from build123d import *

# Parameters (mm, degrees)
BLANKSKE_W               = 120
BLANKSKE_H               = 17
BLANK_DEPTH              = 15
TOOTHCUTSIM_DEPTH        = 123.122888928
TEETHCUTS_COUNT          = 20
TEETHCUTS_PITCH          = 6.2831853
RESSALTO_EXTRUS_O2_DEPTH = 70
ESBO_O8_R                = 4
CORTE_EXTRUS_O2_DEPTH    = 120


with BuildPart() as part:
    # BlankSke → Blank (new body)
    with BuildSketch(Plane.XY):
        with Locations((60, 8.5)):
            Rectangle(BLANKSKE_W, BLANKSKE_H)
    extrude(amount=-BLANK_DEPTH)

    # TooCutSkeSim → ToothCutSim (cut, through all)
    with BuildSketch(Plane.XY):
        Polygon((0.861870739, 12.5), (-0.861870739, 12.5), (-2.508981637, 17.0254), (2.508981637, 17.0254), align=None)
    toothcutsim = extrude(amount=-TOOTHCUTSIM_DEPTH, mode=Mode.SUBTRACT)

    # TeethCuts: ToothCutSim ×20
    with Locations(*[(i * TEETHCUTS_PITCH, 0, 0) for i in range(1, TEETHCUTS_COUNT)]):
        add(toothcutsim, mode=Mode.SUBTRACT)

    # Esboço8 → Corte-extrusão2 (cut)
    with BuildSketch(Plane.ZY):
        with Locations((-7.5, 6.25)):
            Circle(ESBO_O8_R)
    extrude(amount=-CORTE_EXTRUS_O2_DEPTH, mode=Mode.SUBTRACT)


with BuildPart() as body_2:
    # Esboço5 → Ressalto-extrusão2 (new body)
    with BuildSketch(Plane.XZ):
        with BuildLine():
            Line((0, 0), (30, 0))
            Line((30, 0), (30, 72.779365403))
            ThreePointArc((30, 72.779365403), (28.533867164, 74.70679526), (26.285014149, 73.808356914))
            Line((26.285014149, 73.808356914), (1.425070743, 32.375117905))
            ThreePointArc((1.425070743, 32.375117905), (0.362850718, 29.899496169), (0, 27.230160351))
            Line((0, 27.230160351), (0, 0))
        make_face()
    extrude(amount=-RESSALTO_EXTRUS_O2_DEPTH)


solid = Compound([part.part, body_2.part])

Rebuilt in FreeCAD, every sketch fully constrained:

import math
import FreeCAD as App
import Part
import Sketcher
Q = App.Units.Quantity

doc = App.newDocument("Part")
body = doc.addObject("PartDesign::Body", "Body")

# Sketch on XY plane
sketch1 = body.newObject("Sketcher::SketchObject", "Sketch")
sketch1.AttachmentSupport = (doc.getObject("XY_Plane"), [""])
sketch1.MapMode = "FlatFace"
sketch1.addGeometry([
    Part.LineSegment(App.Vector(0, 17, 0), App.Vector(0, 0, 0)),
    Part.LineSegment(App.Vector(0, 0, 0), App.Vector(120, 0, 0)),
    Part.LineSegment(App.Vector(120, 0, 0), App.Vector(120, 17, 0)),
    Part.LineSegment(App.Vector(120, 17, 0), App.Vector(0, 17, 0)),
], False)
sketch1.addConstraint([
    Sketcher.Constraint("Coincident", 0, 2, 1, 1),
    Sketcher.Constraint("Coincident", 1, 2, 2, 1),
    Sketcher.Constraint("Coincident", 2, 2, 3, 1),
    Sketcher.Constraint("Coincident", 3, 2, 0, 1),
    Sketcher.Constraint("Vertical", 0),
    Sketcher.Constraint("Horizontal", 1),
    Sketcher.Constraint("Vertical", 2),
    Sketcher.Constraint("Horizontal", 3),
    Sketcher.Constraint("Coincident", 0, 2, -1, 1),
    Sketcher.Constraint("DistanceX", 1, 1, 1, 2, 120.0),
    Sketcher.Constraint("DistanceY", 0, 2, 0, 1, 17.0),
])
pad1 = body.newObject("PartDesign::Pad", "Pad")
pad1.Profile = sketch1
pad1.Length = 15
pad1.Reversed = True

# Sketch on XY plane
sketch2 = body.newObject("Sketcher::SketchObject", "Sketch001")
sketch2.AttachmentSupport = (doc.getObject("XY_Plane"), [""])
sketch2.MapMode = "FlatFace"
sketch2.addGeometry([
    Part.LineSegment(App.Vector(-0.9, 12.5, 0), App.Vector(0.9, 12.5, 0)),
    Part.LineSegment(App.Vector(0.9, 12.5, 0), App.Vector(2.5, 17, 0)),
    Part.LineSegment(App.Vector(2.5, 17, 0), App.Vector(-2.5, 17, 0)),
    Part.LineSegment(App.Vector(-2.5, 17, 0), App.Vector(-0.9, 12.5, 0)),
], False)
sketch2.addConstraint([
    Sketcher.Constraint("Coincident", 0, 2, 1, 1),
    Sketcher.Constraint("Coincident", 1, 2, 2, 1),
    Sketcher.Constraint("Coincident", 2, 2, 3, 1),
    Sketcher.Constraint("Coincident", 3, 2, 0, 1),
    Sketcher.Constraint("Horizontal", 0),
    Sketcher.Constraint("Horizontal", 2),
    Sketcher.Constraint("Equal", 1, 3),
    Sketcher.Constraint("Angle", 1, Q("70 deg")),
    Sketcher.Constraint("DistanceY", -1, 1, 0, 2, 12.5),
    Sketcher.Constraint("DistanceX", 0, 1, 0, 2, 1.723741),
    Sketcher.Constraint("DistanceY", -1, 1, 1, 2, 17.0254),
    Sketcher.Constraint("DistanceX", -1, 1, 0, 2, 0.861871),
])
pocket1 = body.newObject("PartDesign::Pocket", "Pocket")
pocket1.Profile = sketch2
pocket1.Type = "ThroughAll"
doc.recompute()

linearpattern = body.newObject("PartDesign::LinearPattern", "LinearPattern")
linearpattern.Originals = [pocket1]
linearpattern.Direction = (doc.getObject("X_Axis"), [""])
linearpattern.Mode = "offset"
linearpattern.Offset = 6.283185
linearpattern.Occurrences = 20
body.Tip = linearpattern

# Sketch on YZ plane
sketch3 = body.newObject("Sketcher::SketchObject", "Sketch002")
sketch3.AttachmentSupport = (doc.getObject("YZ_Plane"), [""])
sketch3.MapMode = "FlatFace"
sketch3.addGeometry(Part.Circle(App.Vector(6.2, -7.5, 0), App.Vector(0, 0, 1), 4), False)
sketch3.addConstraint([
    Sketcher.Constraint("Diameter", 0, 8.0),
    Sketcher.Constraint("DistanceY", 0, 3, -1, 1, 7.5),
    Sketcher.Constraint("DistanceX", -1, 1, 0, 3, 6.25),
])
pocket2 = body.newObject("PartDesign::Pocket", "Pocket001")
pocket2.Profile = sketch3
pocket2.Length = 120
pocket2.Reversed = True
body2 = doc.addObject("PartDesign::Body", "Body001")

# Sketch on XZ plane
sketch4 = body2.newObject("Sketcher::SketchObject", "Sketch003")
sketch4.AttachmentSupport = (doc.getObject("XZ_Plane001"), [""])
sketch4.MapMode = "FlatFace"
sketch4.addGeometry([
    Part.LineSegment(App.Vector(0, 0, 0), App.Vector(30, 0, 0)),  # 0
    Part.LineSegment(App.Vector(30, 0, 0), App.Vector(30, 72.8, 0)),  # 1
    Part.ArcOfCircle(Part.Circle(App.Vector(28, 72.8, 0), App.Vector(0, 0, 1), 2), math.radians(0), math.radians(149)),  # 2
    Part.LineSegment(App.Vector(26.3, 73.8, 0), App.Vector(1.4, 32.4, 0)),  # 3
    Part.ArcOfCircle(Part.Circle(App.Vector(10, 27.2, 0), App.Vector(0, 0, 1), 10), math.radians(149), math.radians(180)),  # 4
    Part.LineSegment(App.Vector(0, 27.2, 0), App.Vector(0, 0, 0)),  # 5
], False)
sketch4.addConstraint([
    Sketcher.Constraint("Coincident", 0, 2, 1, 1),
    Sketcher.Constraint("Tangent", 1, 2, 2, 1),
    Sketcher.Constraint("Tangent", 2, 2, 3, 1),
    Sketcher.Constraint("Tangent", 3, 2, 4, 1),
    Sketcher.Constraint("Tangent", 4, 2, 5, 1),
    Sketcher.Constraint("Coincident", 5, 2, 0, 1),
    Sketcher.Constraint("Horizontal", 0),
    Sketcher.Constraint("Vertical", 1),
    Sketcher.Constraint("Vertical", 5),
    Sketcher.Constraint("Coincident", 5, 2, -1, 1),
    Sketcher.Constraint("Radius", 2, 2.0),
    Sketcher.Constraint("Radius", 4, 10.0),
    Sketcher.Constraint("DistanceX", 0, 1, 0, 2, 30.0),
    Sketcher.Constraint("DistanceY", 5, 2, 5, 1, 27.23016),
    Sketcher.Constraint("DistanceY", 1, 1, 1, 2, 72.779365),
])
pad2 = body2.newObject("PartDesign::Pad", "Pad001")
pad2.Profile = sketch4
pad2.Length = 70
pad2.Reversed = True

doc.recompute()
